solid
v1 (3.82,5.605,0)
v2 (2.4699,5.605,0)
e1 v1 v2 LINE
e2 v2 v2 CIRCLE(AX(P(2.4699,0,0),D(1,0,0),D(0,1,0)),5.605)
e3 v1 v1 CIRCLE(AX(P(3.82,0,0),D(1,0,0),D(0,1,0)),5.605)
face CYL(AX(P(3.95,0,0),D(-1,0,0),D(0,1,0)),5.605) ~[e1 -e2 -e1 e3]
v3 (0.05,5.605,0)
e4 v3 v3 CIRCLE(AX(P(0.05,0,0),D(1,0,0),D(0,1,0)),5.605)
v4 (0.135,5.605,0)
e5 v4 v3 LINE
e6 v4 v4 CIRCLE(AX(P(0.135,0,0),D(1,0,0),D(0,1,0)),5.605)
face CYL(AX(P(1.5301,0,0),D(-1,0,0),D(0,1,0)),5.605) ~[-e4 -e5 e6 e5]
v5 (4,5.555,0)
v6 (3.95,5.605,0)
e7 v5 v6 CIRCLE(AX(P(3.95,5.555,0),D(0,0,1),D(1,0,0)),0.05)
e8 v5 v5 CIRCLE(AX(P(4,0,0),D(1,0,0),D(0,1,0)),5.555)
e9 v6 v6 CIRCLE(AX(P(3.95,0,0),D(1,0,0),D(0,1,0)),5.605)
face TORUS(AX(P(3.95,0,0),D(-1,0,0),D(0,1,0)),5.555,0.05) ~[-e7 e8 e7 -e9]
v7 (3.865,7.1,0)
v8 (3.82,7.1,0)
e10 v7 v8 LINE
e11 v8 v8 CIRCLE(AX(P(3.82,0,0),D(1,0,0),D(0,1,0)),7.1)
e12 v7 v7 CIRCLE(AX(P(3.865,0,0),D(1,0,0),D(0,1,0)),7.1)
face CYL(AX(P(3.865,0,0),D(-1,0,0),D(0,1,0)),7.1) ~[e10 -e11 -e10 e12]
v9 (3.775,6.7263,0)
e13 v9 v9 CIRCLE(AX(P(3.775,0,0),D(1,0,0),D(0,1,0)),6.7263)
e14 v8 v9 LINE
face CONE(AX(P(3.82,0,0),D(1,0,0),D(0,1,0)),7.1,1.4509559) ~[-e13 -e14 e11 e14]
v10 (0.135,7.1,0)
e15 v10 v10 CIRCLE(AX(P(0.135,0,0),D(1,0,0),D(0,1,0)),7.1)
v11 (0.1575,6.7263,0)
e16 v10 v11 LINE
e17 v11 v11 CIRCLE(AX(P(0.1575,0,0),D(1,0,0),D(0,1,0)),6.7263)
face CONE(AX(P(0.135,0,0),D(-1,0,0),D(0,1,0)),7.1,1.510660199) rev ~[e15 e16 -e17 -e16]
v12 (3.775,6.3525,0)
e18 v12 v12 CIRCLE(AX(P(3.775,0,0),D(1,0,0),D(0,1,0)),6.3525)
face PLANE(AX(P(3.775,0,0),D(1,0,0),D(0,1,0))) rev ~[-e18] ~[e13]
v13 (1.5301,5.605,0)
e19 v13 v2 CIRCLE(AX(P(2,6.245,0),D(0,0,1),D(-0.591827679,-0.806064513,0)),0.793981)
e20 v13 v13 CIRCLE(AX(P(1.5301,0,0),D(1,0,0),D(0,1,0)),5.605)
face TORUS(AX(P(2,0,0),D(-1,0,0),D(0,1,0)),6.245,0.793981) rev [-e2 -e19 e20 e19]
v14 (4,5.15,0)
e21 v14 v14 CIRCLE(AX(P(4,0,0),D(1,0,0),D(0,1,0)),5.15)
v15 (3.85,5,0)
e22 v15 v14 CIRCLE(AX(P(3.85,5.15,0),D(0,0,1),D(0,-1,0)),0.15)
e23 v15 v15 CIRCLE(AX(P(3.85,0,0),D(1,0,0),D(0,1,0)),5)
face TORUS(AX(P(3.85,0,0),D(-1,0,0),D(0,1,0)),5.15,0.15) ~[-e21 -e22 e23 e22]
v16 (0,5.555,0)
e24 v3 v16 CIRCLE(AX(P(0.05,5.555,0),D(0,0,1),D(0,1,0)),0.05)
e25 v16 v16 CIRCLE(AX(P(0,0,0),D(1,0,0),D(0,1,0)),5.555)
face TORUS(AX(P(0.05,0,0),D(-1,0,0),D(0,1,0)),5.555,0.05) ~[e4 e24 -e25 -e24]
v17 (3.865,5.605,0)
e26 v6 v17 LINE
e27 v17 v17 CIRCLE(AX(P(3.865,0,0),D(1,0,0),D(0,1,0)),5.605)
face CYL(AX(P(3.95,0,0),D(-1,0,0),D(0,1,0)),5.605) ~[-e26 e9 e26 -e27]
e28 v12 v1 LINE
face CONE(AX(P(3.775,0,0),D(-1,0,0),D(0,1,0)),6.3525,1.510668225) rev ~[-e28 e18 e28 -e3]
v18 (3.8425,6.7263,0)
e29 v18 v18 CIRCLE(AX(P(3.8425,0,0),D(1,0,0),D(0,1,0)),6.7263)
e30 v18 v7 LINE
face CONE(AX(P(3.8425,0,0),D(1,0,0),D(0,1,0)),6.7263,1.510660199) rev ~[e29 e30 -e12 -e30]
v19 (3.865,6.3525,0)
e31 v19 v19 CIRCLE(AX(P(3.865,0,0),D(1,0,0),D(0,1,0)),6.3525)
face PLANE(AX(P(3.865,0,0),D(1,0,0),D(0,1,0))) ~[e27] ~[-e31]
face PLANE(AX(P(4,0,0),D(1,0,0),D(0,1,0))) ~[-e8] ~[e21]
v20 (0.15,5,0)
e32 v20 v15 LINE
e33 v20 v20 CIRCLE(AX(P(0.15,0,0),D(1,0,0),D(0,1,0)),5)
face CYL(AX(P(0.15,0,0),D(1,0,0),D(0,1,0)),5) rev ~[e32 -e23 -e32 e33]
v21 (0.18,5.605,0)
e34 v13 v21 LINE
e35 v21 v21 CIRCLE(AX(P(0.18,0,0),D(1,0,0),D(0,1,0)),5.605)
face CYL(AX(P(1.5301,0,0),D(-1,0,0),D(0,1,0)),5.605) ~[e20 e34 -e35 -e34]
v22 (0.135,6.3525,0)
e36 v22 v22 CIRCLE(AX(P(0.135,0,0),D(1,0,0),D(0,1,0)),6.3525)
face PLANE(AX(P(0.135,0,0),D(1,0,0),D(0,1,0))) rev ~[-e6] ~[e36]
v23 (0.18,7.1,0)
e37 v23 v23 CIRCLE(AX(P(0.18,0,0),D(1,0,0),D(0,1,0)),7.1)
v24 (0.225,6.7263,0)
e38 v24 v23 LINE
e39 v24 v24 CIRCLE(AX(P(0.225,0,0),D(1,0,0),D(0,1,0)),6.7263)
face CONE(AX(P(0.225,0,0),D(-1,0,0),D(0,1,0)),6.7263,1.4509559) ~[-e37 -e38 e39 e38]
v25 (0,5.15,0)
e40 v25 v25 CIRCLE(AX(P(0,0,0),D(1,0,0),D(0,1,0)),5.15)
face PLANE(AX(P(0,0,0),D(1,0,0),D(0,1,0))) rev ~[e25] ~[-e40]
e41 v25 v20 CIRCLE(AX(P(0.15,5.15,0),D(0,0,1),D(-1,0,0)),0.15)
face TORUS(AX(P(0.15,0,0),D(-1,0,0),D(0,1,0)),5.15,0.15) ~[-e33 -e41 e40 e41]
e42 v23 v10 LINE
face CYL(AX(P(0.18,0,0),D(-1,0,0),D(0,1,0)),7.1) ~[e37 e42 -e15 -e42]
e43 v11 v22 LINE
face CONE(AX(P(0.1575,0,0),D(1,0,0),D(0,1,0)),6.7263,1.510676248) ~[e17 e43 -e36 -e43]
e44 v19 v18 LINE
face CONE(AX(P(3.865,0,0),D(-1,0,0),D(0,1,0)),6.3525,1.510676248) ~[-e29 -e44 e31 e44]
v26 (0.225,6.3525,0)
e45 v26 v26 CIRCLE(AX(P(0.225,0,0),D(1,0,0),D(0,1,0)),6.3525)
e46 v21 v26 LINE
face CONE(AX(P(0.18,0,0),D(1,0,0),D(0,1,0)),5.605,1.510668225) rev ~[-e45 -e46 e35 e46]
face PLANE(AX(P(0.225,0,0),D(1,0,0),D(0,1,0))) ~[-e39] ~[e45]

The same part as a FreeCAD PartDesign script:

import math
import FreeCAD as App
import Part
import Sketcher
from FreeCAD import Vector
Q = App.Units.Quantity


def add_polygon(sketch, points):
    """Adds a closed chain of lines whose ends are joined by coincident constraints."""
    first, n = sketch.GeometryCount, len(points)
    for a, b in zip(points, points[1:] + points[:1]):
        sketch.addGeometry(Part.LineSegment(App.Vector(*a, 0), App.Vector(*b, 0)), False)
    for i in range(n):
        sketch.addConstraint(Sketcher.Constraint("Coincident", first + i, 2, first + (i + 1) % n, 1))

doc = App.newDocument("Part")
params = doc.addObject("Spreadsheet::Sheet", "Params")
for row, (alias, value) in enumerate([
    ("sketch1_radius", "0.05 mm"),
    ("sketch1_radius2", "0.15 mm"),
    ("sketch1_width", "3.7 mm"),
    ("sketch1_width2", "1.48 mm"),
    ("revolution_angle", "360 deg"),
    ("revolution2_angle", "360 deg"),
    ("revolution3_angle", "360 deg"),
], start=1):
    params.set(f"A{row}", alias)
    params.set(f"B{row}", "=" + value)
    params.setAlias(f"B{row}", alias)

body = doc.addObject("PartDesign::Body", "Body")

sketch1 = doc.addObject("Sketcher::SketchObject", "Sketch")
body.addObject(sketch1)
sketch1.AttachmentSupport = (doc.XY_Plane, [""])
sketch1.MapMode = "FlatFace"
sketch1.addGeometry([
    Part.ArcOfCircle(Part.Circle(Vector(0.05, 5.555, 0), Vector(0, 0, 1), 0.05), math.radians(90), math.radians(180)),
    Part.LineSegment(Vector(0, 5.555, 0), Vector(0, 5.15, 0)),
    Part.ArcOfCircle(Part.Circle(Vector(0.15, 5.15, 0), Vector(0, 0, 1), 0.15), math.radians(180), math.radians(270)),
    Part.LineSegment(Vector(0.15, 5, 0), Vector(3.85, 5, 0)),
    Part.ArcOfCircle(Part.Circle(Vector(3.85, 5.15, 0), Vector(0, 0, 1), 0.15), math.radians(-90), math.radians(0)),
    Part.LineSegment(Vector(4, 5.15, 0), Vector(4, 5.555, 0)),
    Part.ArcOfCircle(Part.Circle(Vector(3.95, 5.555, 0), Vector(0, 0, 1), 0.05), math.radians(0), math.radians(90)),
    Part.LineSegment(Vector(3.95, 5.605, 0), Vector(2.47, 5.605, 0)),
    Part.ArcOfCircle(Part.Circle(Vector(2, 6.245, 0), Vector(0, 0, 1), 0.794), math.radians(-126), math.radians(-54)),
    Part.LineSegment(Vector(1.53, 5.605, 0), Vector(0.05, 5.605, 0)),
], False)
sketch1.addConstraint([
    Sketcher.Constraint("Tangent", 0, 2, 1, 1),
    Sketcher.Constraint("Tangent", 1, 2, 2, 1),
    Sketcher.Constraint("Tangent", 2, 2, 3, 1),
    Sketcher.Constraint("Tangent", 3, 2, 4, 1),
    Sketcher.Constraint("Tangent", 4, 2, 5, 1),
    Sketcher.Constraint("Tangent", 5, 2, 6, 1),
    Sketcher.Constraint("Tangent", 6, 2, 7, 1),
    Sketcher.Constraint("Coincident", 7, 2, 8, 2),
    Sketcher.Constraint("Coincident", 8, 1, 9, 1),
    Sketcher.Constraint("Tangent", 9, 2, 0, 1),
    Sketcher.Constraint("Vertical", 1),
    Sketcher.Constraint("Horizontal", 3),
    Sketcher.Constraint("Vertical", 5),
    Sketcher.Constraint("Horizontal", 7),
    Sketcher.Constraint("Horizontal", 9),
    Sketcher.Constraint("Equal", 2, 4),
    Sketcher.Constraint("Equal", 0, 6),
    Sketcher.Constraint("PointOnObject", 0, 2, -2),
    Sketcher.Constraint("Horizontal", 0, 3, 6, 3),
    Sketcher.Constraint("Equal", 7, 9),
    Sketcher.Constraint("Radius", 0, Q("0.05 mm")),
    Sketcher.Constraint("Radius", 2, Q("0.15 mm")),
    Sketcher.Constraint("DistanceX", 3, 1, 3, 2, Q("3.7 mm")),
    Sketcher.Constraint("DistanceY", -1, 1, 2, 2, Q("5 mm")),
    Sketcher.Constraint("Radius", 8, Q("0.794 mm")),
    Sketcher.Constraint("DistanceX", 7, 2, 7, 1, Q("1.48 mm")),
    Sketcher.Constraint("DistanceY", 1, 2, 1, 1, Q("0.405 mm")),
])
sketch1.setExpression("Constraints[20]", "Params.sketch1_radius")
sketch1.setExpression("Constraints[21]", "Params.sketch1_radius2")
sketch1.setExpression("Constraints[22]", "Params.sketch1_width")
sketch1.setExpression("Constraints[25]", "Params.sketch1_width2")
revolution = doc.addObject("PartDesign::Revolution", "Revolution")
body.addObject(revolution)
revolution.Profile = sketch1
revolution.ReferenceAxis = (sketch1, ["H_Axis"])
revolution.setExpression("Angle", "Params.revolution_angle")

sketch2 = doc.addObject("Sketcher::SketchObject", "Sketch001")
body.addObject(sketch2)
sketch2.AttachmentSupport = (doc.XY_Plane, [""])
sketch2.MapMode = "FlatFace"
add_polygon(sketch2, [(0.18, 7.1), (0.135, 7.1), (0.158, 6.726), (0.135, 6.353), (0.135, 5.605), (0.18, 5.605), (0.225, 6.353), (0.225, 6.726)])
sketch2.addConstraint([
    Sketcher.Constraint("Horizontal", 0),
    Sketcher.Constraint("Vertical", 3),
    Sketcher.Constraint("Horizontal", 4),
    Sketcher.Constraint("Vertical", 6),
    Sketcher.Constraint("Parallel", 2, 5),
    Sketcher.Constraint("Horizontal", 2, 2, 5, 2),
    Sketcher.Constraint("Horizontal", 1, 2, 6, 2),
    Sketcher.Constraint("Vertical", 0, 2, 2, 2),
    Sketcher.Constraint("Vertical", 4, 2, 7, 2),
    Sketcher.Constraint("Equal", 1, 2),
    Sketcher.Constraint("DistanceY", -1, 1, 0, 2, Q("7.1 mm")),
    Sketcher.Constraint("DistanceX", 0, 2, 0, 1, Q("0.045 mm")),
    Sketcher.Constraint("DistanceX", -1, 1, 4, 2, Q("0.18 mm")),
    Sketcher.Constraint("DistanceX", 2, 2, 5, 2, Q("0.09 mm")),
    Sketcher.Constraint("DistanceY", 3, 2, 3, 1, Q("0.7475 mm")),
    Sketcher.Constraint("DistanceY", 6, 1, 6, 2, Q("0.3738 mm")),
])
revolution2 = doc.addObject("PartDesign::Revolution", "Revolution001")
body.addObject(revolution2)
revolution2.Profile = sketch2
revolution2.ReferenceAxis = (sketch2, ["H_Axis"])
revolution2.setExpression("Angle", "Params.revolution2_angle")

sketch3 = doc.addObject("Sketcher::SketchObject", "Sketch002")
body.addObject(sketch3)
sketch3.AttachmentSupport = (doc.XY_Plane, [""])
sketch3.MapMode = "FlatFace"
add_polygon(sketch3, [(3.82, 7.1), (3.775, 6.726), (3.775, 6.353), (3.82, 5.605), (3.865, 5.605), (3.865, 6.353), (3.842, 6.726), (3.865, 7.1)])
sketch3.addConstraint([
    Sketcher.Constraint("Vertical", 1),
    Sketcher.Constraint("Horizontal", 3),
    Sketcher.Constraint("Vertical", 4),
    Sketcher.Constraint("Horizontal", 7),
    Sketcher.Constraint("Parallel", 2, 5),
    Sketcher.Constraint("Horizontal", 1, 2, 4, 2),
    Sketcher.Constraint("Horizontal", 0, 2, 5, 2),
    Sketcher.Constraint("Vertical", 4, 2, 6, 2),
    Sketcher.Constraint("Vertical", 2, 2, 7, 2),
    Sketcher.Constraint("Equal", 5, 6),
    Sketcher.Constraint("DistanceY", -1, 1, 6, 2, Q("7.1 mm")),
    Sketcher.Constraint("DistanceX", 3, 1, 3, 2, Q("0.045 mm")),
    Sketcher.Constraint("DistanceX", -1, 1, 2, 2, Q("3.82 mm")),
    Sketcher.Constraint("DistanceX", 1, 2, 3, 2, Q("0.09 mm")),
    Sketcher.Constraint("DistanceY", 1, 2, 1, 1, Q("0.3738 mm")),
    Sketcher.Constraint("DistanceY", 4, 1, 4, 2, Q("0.7475 mm")),
])
revolution3 = doc.addObject("PartDesign::Revolution", "Revolution002")
body.addObject(revolution3)
revolution3.Profile = sketch3
revolution3.ReferenceAxis = (sketch3, ["H_Axis"])
revolution3.setExpression("Angle", "Params.revolution3_angle")

doc.recompute()
